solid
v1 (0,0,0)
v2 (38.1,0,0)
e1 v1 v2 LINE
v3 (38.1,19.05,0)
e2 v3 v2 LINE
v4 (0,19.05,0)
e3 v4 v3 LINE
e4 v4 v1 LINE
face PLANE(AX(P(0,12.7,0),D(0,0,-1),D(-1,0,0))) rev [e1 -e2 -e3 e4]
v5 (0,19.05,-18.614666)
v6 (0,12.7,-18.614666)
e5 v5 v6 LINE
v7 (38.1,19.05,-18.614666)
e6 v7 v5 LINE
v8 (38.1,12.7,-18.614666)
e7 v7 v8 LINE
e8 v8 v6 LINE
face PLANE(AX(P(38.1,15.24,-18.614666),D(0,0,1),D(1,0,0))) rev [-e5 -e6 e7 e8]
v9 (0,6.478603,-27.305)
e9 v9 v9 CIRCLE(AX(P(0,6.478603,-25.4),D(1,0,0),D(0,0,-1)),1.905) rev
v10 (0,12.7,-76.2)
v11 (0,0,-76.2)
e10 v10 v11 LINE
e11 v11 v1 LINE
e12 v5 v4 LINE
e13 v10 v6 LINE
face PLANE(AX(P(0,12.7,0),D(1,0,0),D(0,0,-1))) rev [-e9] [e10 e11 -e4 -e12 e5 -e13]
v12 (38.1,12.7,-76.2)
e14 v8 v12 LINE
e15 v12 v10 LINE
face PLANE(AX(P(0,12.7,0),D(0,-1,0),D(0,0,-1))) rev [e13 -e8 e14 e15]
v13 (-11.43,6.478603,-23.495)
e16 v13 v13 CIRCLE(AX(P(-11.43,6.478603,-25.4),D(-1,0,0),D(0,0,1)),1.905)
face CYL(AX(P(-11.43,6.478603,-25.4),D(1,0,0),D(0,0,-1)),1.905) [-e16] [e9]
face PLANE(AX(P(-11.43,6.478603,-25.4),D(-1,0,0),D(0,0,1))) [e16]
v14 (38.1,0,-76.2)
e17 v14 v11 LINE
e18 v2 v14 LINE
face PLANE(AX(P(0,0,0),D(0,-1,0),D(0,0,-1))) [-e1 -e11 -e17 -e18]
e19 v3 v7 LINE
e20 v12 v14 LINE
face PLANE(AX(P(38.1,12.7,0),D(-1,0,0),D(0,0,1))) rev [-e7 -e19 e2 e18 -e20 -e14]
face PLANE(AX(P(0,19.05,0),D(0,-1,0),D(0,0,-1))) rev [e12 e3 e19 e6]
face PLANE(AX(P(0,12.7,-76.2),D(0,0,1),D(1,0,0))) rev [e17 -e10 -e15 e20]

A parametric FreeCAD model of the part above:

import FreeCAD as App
import Part
import Sketcher

V = App.Vector
Q = App.Units.Quantity


def add_polygon(sketch, points):
    """Adds a closed chain of lines whose ends are joined by coincident constraints."""
    first, n = sketch.GeometryCount, len(points)
    for a, b in zip(points, points[1:] + points[:1]):
        sketch.addGeometry(Part.LineSegment(App.Vector(*a, 0), App.Vector(*b, 0)), False)
    for i in range(n):
        sketch.addConstraint(Sketcher.Constraint("Coincident", first + i, 2, first + (i + 1) % n, 1))

doc = App.newDocument("Part")
body = doc.addObject("PartDesign::Body", "Body")

sketch1 = body.newObject("Sketcher::SketchObject", "Sketch")
sketch1.AttachmentSupport = (doc.getObject("XZ_Plane"), [""])
sketch1.MapMode = "FlatFace"
add_polygon(sketch1, [(0, -76), (0, 0), (38, 0), (38, -76)])
sketch1.addConstraint([
    Sketcher.Constraint("Vertical", 0),
    Sketcher.Constraint("Horizontal", 1),
    Sketcher.Constraint("Vertical", 2),
    Sketcher.Constraint("Horizontal", 3),
    Sketcher.Constraint("Coincident", 0, 2, -1, 1),
    Sketcher.Constraint("DistanceY", 0, 1, 0, 2, Q("3 in")),
    Sketcher.Constraint("DistanceX", 1, 1, 1, 2, Q("1.5 in")),
])
pad1 = body.newObject("PartDesign::Pad", "Pad")
pad1.Profile = sketch1
pad1.Length = Q("0.5 in")
pad1.Reversed = True

sketch2 = body.newObject("Sketcher::SketchObject", "Sketch001")
sketch2.AttachmentSupport = (doc.getObject("YZ_Plane"), [""])
sketch2.MapMode = "FlatFace"
sketch2.addGeometry(Part.Circle(V(6.5, -25.4, 0), V(0, 0, 1), 1.9), False)
sketch2.addConstraint([
    Sketcher.Constraint("Diameter", 0, Q("0.15 in")),
    Sketcher.Constraint("DistanceY", 0, 3, -1, 1, Q("1 in")),
    Sketcher.Constraint("DistanceX", -1, 1, 0, 3, Q("6.478603 mm")),
])
pad2 = body.newObject("PartDesign::Pad", "Pad001")
pad2.Profile = sketch2
pad2.Length = Q("0.45 in")
pad2.Reversed = True

sketch3 = body.newObject("Sketcher::SketchObject", "Sketch002")
sketch3.AttachmentSupport = (doc.getObject("XZ_Plane"), [""])
sketch3.MapMode = "FlatFace"
sketch3.AttachmentOffset = App.Placement(V(0, 0, -0.5 * 25.4), App.Rotation())
add_polygon(sketch3, [(0, -19), (0, 0), (38, 0), (38, -19)])
sketch3.addConstraint([
    Sketcher.Constraint("Vertical", 0),
    Sketcher.Constraint("Horizontal", 1),
    Sketcher.Constraint("Vertical", 2),
    Sketcher.Constraint("Horizontal", 3),
    Sketcher.Constraint("Coincident", 0, 2, -1, 1),
    Sketcher.Constraint("DistanceX", 1, 1, 1, 2, Q("1.5 in")),
    Sketcher.Constraint("DistanceY", 0, 1, 0, 2, Q("18.614666 mm")),
])
pad3 = body.newObject("PartDesign::Pad", "Pad002")
pad3.Profile = sketch3
pad3.Length = Q("0.1 in")
pad3.Reversed = True

sketch4 = body.newObject("Sketcher::SketchObject", "Sketch003")
sketch4.AttachmentSupport = (doc.getObject("XZ_Plane"), [""])
sketch4.MapMode = "FlatFace"
sketch4.AttachmentOffset = App.Placement(V(0, 0, -0.6 * 25.4), App.Rotation())
add_polygon(sketch4, [(0, -19), (0, 0), (38, 0), (38, -19)])
sketch4.addConstraint([
    Sketcher.Constraint("Vertical", 0),
    Sketcher.Constraint("Horizontal", 1),
    Sketcher.Constraint("Vertical", 2),
    Sketcher.Constraint("Horizontal", 3),
    Sketcher.Constraint("Coincident", 0, 2, -1, 1),
    Sketcher.Constraint("DistanceX", 1, 1, 1, 2, Q("1.5 in")),
    Sketcher.Constraint("DistanceY", 0, 1, 0, 2, Q("18.614666 mm")),
])
pad4 = body.newObject("PartDesign::Pad", "Pad003")
pad4.Profile = sketch4
pad4.Length = Q("0.15 in")
pad4.Reversed = True

doc.recompute()
